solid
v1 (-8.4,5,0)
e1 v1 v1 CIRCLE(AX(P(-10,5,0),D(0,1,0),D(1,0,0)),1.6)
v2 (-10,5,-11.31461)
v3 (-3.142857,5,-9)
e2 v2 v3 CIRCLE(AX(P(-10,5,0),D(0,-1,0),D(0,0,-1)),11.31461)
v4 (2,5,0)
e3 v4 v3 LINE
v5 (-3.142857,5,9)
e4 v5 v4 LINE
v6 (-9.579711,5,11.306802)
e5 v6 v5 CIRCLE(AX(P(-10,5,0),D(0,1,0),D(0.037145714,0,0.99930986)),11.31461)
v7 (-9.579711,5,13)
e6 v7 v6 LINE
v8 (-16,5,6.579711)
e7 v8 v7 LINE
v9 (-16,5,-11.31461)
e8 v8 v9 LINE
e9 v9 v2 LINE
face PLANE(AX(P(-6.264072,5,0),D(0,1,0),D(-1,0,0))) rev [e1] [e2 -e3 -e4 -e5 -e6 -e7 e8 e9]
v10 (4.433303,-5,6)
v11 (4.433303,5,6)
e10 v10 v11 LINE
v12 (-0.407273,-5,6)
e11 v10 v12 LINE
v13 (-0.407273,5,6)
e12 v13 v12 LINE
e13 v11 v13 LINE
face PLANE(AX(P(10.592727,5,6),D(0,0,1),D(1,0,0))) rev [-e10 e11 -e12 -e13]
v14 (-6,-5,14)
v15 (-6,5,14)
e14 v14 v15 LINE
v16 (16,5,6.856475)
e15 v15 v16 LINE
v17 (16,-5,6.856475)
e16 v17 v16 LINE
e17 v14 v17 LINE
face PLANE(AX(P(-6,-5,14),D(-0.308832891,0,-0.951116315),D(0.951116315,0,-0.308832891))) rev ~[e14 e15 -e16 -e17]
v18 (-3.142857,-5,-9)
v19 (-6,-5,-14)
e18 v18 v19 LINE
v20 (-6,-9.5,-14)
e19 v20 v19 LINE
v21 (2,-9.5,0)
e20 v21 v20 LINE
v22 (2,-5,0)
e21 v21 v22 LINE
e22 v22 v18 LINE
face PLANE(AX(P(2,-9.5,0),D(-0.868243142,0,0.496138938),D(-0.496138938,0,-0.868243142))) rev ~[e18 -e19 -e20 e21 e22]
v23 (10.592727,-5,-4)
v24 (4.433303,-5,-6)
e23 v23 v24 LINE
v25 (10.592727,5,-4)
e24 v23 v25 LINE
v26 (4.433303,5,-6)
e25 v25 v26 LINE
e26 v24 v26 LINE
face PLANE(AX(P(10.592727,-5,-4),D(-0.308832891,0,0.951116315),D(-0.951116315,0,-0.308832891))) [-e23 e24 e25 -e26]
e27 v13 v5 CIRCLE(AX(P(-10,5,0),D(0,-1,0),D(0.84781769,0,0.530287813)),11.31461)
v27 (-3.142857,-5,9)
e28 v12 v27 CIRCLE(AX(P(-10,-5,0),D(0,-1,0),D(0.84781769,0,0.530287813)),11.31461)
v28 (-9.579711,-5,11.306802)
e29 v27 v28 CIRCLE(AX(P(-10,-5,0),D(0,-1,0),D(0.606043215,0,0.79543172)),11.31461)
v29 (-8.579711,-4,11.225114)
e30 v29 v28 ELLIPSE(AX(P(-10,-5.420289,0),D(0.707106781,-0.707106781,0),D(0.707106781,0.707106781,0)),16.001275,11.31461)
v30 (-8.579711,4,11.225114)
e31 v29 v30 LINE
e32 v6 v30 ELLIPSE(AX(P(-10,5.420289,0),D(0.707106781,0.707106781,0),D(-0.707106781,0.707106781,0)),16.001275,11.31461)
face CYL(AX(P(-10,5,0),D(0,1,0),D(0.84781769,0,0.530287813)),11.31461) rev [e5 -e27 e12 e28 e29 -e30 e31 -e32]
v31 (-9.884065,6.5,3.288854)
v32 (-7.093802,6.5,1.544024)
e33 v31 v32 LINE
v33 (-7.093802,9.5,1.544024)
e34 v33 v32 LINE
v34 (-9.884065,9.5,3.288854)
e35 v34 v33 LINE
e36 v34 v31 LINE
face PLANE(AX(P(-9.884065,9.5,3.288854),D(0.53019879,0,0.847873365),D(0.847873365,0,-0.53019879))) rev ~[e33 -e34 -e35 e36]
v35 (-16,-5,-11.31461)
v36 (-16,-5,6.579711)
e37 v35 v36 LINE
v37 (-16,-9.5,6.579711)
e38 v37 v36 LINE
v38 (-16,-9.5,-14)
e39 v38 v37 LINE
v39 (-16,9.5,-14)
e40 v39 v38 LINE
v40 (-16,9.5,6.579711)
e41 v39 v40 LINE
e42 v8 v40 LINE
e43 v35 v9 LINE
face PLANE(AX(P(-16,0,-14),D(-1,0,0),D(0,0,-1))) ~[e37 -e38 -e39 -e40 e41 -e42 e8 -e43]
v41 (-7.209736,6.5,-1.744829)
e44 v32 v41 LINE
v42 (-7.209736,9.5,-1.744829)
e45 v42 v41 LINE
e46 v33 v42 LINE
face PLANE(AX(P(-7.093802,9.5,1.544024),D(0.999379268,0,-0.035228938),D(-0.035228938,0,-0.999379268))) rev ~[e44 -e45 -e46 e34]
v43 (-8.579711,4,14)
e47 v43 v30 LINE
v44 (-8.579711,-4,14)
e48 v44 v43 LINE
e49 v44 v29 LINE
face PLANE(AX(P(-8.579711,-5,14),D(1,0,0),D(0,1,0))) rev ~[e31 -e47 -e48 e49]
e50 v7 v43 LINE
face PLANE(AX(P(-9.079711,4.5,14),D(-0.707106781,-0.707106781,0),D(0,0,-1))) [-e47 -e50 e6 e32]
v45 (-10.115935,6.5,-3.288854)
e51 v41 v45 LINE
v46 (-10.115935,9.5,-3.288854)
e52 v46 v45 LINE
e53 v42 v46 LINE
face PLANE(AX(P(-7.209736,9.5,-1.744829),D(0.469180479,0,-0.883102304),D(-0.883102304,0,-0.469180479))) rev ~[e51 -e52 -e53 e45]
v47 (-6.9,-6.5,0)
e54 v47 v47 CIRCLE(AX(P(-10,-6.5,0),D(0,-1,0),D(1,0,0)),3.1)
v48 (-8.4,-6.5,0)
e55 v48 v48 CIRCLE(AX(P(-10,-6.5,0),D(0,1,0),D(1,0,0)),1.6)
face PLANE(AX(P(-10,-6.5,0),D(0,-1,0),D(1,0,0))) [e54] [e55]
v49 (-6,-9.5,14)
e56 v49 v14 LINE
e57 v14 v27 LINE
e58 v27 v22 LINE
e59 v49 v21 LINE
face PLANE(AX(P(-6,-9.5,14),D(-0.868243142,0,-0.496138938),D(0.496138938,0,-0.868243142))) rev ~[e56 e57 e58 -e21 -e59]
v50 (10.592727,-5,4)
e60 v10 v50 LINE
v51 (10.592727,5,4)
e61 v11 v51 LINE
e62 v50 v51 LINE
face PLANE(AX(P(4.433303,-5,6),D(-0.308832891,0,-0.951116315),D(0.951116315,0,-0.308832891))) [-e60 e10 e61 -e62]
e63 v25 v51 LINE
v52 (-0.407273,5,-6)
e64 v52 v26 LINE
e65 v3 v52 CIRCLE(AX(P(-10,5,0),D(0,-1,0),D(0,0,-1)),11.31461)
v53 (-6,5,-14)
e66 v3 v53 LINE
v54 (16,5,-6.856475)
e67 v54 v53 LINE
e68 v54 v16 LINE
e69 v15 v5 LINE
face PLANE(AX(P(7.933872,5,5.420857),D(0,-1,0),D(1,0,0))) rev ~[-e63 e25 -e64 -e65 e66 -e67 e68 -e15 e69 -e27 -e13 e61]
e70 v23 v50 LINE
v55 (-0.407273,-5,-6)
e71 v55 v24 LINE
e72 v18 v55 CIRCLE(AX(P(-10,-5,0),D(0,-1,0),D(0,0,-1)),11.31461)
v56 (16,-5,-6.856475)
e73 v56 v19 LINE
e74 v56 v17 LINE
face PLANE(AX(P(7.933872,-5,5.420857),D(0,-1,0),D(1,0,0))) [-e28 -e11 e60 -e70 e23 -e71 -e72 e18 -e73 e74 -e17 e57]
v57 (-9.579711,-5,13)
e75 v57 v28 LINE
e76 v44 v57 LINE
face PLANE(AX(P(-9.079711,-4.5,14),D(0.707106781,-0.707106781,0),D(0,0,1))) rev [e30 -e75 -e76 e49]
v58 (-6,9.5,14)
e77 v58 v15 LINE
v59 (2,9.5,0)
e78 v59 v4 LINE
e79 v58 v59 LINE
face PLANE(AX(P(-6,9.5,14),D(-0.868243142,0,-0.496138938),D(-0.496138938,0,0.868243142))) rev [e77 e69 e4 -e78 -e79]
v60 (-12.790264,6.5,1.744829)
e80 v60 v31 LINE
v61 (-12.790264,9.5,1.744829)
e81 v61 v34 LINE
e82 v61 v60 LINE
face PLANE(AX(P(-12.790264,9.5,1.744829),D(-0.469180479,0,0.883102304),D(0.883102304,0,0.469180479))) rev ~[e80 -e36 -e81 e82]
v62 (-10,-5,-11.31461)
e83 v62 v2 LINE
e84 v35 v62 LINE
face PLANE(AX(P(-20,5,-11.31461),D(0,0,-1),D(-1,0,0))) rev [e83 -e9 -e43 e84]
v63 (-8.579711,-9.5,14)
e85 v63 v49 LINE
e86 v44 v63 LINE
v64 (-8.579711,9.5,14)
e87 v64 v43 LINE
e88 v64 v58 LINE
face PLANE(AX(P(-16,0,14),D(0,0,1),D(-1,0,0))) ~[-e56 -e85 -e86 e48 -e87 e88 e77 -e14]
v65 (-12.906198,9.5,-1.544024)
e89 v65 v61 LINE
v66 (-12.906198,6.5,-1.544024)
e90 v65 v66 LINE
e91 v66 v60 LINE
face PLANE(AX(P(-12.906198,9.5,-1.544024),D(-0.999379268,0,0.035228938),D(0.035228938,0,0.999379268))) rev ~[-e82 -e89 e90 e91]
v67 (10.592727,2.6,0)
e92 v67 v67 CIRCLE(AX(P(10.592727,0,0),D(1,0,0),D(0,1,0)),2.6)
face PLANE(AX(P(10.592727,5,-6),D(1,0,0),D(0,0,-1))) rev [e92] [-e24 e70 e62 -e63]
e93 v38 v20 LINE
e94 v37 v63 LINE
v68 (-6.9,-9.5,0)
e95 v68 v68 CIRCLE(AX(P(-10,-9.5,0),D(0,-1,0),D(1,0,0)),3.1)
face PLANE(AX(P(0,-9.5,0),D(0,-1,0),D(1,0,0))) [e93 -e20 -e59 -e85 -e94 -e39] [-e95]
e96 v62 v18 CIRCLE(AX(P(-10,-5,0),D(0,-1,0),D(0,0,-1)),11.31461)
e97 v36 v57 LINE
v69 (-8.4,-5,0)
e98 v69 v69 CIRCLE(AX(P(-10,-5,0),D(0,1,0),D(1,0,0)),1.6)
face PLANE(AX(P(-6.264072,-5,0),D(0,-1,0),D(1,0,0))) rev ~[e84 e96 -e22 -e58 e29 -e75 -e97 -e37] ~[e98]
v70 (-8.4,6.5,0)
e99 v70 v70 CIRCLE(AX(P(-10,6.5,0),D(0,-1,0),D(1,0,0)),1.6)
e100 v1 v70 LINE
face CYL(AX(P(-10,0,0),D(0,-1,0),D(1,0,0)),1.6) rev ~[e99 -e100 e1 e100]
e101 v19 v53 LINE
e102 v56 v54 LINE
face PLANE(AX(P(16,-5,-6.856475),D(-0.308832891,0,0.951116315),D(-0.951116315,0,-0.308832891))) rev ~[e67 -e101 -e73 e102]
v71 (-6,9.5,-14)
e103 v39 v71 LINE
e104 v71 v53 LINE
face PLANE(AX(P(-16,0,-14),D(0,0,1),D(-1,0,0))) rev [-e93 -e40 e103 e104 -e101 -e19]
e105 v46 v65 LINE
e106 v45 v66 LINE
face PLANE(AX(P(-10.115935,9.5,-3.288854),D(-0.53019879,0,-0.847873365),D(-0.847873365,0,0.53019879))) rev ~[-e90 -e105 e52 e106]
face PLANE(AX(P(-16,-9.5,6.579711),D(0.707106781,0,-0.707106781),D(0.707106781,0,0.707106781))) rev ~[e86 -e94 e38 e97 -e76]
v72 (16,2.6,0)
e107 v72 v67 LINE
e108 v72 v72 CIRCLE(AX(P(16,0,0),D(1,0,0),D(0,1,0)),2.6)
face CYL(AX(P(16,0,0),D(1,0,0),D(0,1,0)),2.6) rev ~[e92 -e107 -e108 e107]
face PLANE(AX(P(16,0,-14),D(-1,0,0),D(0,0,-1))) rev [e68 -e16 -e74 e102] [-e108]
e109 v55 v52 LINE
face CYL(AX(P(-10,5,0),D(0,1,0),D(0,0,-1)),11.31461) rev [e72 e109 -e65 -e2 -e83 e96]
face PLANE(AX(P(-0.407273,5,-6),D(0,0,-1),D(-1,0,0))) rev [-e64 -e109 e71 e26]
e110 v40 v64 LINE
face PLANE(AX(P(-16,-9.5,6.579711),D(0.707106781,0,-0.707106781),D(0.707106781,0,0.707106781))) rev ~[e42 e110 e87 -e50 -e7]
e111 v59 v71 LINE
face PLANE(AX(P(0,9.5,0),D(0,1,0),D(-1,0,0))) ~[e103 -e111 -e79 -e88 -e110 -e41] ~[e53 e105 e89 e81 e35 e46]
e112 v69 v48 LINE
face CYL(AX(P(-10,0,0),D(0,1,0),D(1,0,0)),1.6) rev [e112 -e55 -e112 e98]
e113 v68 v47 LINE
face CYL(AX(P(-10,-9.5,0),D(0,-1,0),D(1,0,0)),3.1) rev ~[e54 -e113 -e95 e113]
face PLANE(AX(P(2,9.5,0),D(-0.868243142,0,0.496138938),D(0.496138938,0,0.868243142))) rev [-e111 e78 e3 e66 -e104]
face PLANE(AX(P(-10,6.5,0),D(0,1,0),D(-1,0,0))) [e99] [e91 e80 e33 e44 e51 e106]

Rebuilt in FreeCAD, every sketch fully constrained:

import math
import FreeCAD as App
import Part
import Sketcher

V = App.Vector


def edges_at(feature, points):
    """Names of the edges that pass closest to the given points."""
    edges = feature.Shape.Edges
    near = lambda p: min(range(len(edges)), key=lambda i: edges[i].distToShape(Part.Vertex(*p))[0])
    return sorted({f"Edge{near(p) + 1}" for p in points})


def add_polygon(sketch, points):
    """Adds a closed chain of lines whose ends are joined by coincident constraints."""
    first, n = sketch.GeometryCount, len(points)
    for a, b in zip(points, points[1:] + points[:1]):
        sketch.addGeometry(Part.LineSegment(App.Vector(*a, 0), App.Vector(*b, 0)), False)
    for i in range(n):
        sketch.addConstraint(Sketcher.Constraint("Coincident", first + i, 2, first + (i + 1) % n, 1))

doc = App.newDocument("Part")
body = doc.addObject("PartDesign::Body", "Body")

# Sketch on XZ plane
sketch1 = body.newObject("Sketcher::SketchObject", "Sketch")
sketch1.AttachmentSupport = (doc.getObject("XZ_Plane"), [""])
sketch1.MapMode = "FlatFace"
add_polygon(sketch1, [(-16, 14), (-16, -14), (16, -14), (16, 14)])  # lines 0-3
sketch1.addGeometry(Part.Circle(V(-10, 0, 0), V(0, 0, 1), 1.6), False)  # 4
sketch1.addConstraint(Sketcher.Constraint("Vertical", 0))
sketch1.addConstraint(Sketcher.Constraint("Horizontal", 1))
sketch1.addConstraint(Sketcher.Constraint("Vertical", 2))
sketch1.addConstraint(Sketcher.Constraint("Horizontal", 3))
sketch1.addConstraint(Sketcher.Constraint("Symmetric", 0, 2, 2, 2, -1, 1))
sketch1.addConstraint(Sketcher.Constraint("PointOnObject", 4, 3, -1))
sketch1.addConstraint(Sketcher.Constraint("Diameter", 4, 3.2))
sketch1.addConstraint(Sketcher.Constraint("DistanceX", 1, 1, 1, 2, 32.0))
sketch1.addConstraint(Sketcher.Constraint("DistanceY", 0, 2, 0, 1, 28.0))
sketch1.addConstraint(Sketcher.Constraint("DistanceX", 4, 3, -1, 1, 10.0))
pad1 = body.newObject("PartDesign::Pad", "Pad")
pad1.Profile = sketch1
pad1.Length = 9.5

# Sketch on XZ plane
sketch2 = body.newObject("Sketcher::SketchObject", "Sketch001")
sketch2.AttachmentSupport = (doc.getObject("XZ_Plane"), [""])
sketch2.MapMode = "FlatFace"
sketch2.AttachmentOffset = App.Placement(V(0, 0, 9.5), App.Rotation())
add_polygon(sketch2, [(16, -14), (16, 14), (-6, 14), (2, 0), (-6, -14)])  # lines 0-4
sketch2.addConstraint(Sketcher.Constraint("Vertical", 0))
sketch2.addConstraint(Sketcher.Constraint("Horizontal", 1))
sketch2.addConstraint(Sketcher.Constraint("Horizontal", 4))
sketch2.addConstraint(Sketcher.Constraint("Symmetric", 1, 2, 3, 2, -1))
sketch2.addConstraint(Sketcher.Constraint("PointOnObject", 2, 2, -1))
sketch2.addConstraint(Sketcher.Constraint("DistanceX", 1, 2, 1, 1, 22.0))
sketch2.addConstraint(Sketcher.Constraint("DistanceY", 0, 1, 0, 2, 28.0))
sketch2.addConstraint(Sketcher.Constraint("DistanceX", -1, 1, 0, 2, 16.0))
sketch2.addConstraint(Sketcher.Constraint("DistanceX", -1, 1, 2, 2, 2.0))
pocket1 = body.newObject("PartDesign::Pocket", "Pocket")
pocket1.Profile = sketch2
pocket1.Length = 4.5

# Sketch on XZ plane
sketch3 = body.newObject("Sketcher::SketchObject", "Sketch002")
sketch3.AttachmentSupport = (doc.getObject("XZ_Plane"), [""])
sketch3.MapMode = "FlatFace"
sketch3.AttachmentOffset = App.Placement(V(0, 0, 5), App.Rotation())
sketch3.addGeometry(Part.LineSegment(V(10.592727, 6, 0), V(-0.407273, 6, 0)), False)
sketch3.addGeometry(Part.ArcOfCircle(Part.Circle(V(-10, 0, 0), V(0, 0, 1), 11.31461), math.radians(32.024903), math.radians(90)), False)
sketch3.addGeometry(Part.LineSegment(V(-10, 11.31461, 0), V(-20, 11.31461, 0)), False)
sketch3.addGeometry(Part.LineSegment(V(-20, 11.31461, 0), V(-20, -11.31461, 0)), False)
sketch3.addGeometry(Part.LineSegment(V(-20, -11.31461, 0), V(-10, -11.31461, 0)), False)
sketch3.addGeometry(Part.ArcOfCircle(Part.Circle(V(-10, 0, 0), V(0, 0, 1), 11.31461), math.radians(-90), math.radians(-32.024903)), False)
sketch3.addGeometry(Part.LineSegment(V(-0.407273, -6, 0), V(10.592727, -6, 0)), False)
sketch3.addGeometry(Part.LineSegment(V(10.592727, -6, 0), V(10.592727, 6, 0)), False)
sketch3.addConstraint(Sketcher.Constraint("Coincident", 0, 2, 1, 1))
sketch3.addConstraint(Sketcher.Constraint("Tangent", 1, 2, 2, 1))
sketch3.addConstraint(Sketcher.Constraint("Coincident", 2, 2, 3, 1))
sketch3.addConstraint(Sketcher.Constraint("Coincident", 3, 2, 4, 1))
sketch3.addConstraint(Sketcher.Constraint("Tangent", 4, 2, 5, 1))
sketch3.addConstraint(Sketcher.Constraint("Coincident", 5, 2, 6, 1))
sketch3.addConstraint(Sketcher.Constraint("Coincident", 6, 2, 7, 1))
sketch3.addConstraint(Sketcher.Constraint("Coincident", 7, 2, 0, 1))
sketch3.addConstraint(Sketcher.Constraint("Horizontal", 0))
sketch3.addConstraint(Sketcher.Constraint("Horizontal", 2))
sketch3.addConstraint(Sketcher.Constraint("Vertical", 3))
sketch3.addConstraint(Sketcher.Constraint("Horizontal", 4))
sketch3.addConstraint(Sketcher.Constraint("Horizontal", 6))
sketch3.addConstraint(Sketcher.Constraint("Vertical", 7))
sketch3.addConstraint(Sketcher.Constraint("Coincident", 5, 3, 1, 3))
sketch3.addConstraint(Sketcher.Constraint("Equal", 1, 5))
sketch3.addConstraint(Sketcher.Constraint("Symmetric", 0, 2, 5, 2, -1))
sketch3.addConstraint(Sketcher.Constraint("DistanceX", 0, 2, 0, 1, 11.0))
sketch3.addConstraint(Sketcher.Constraint("DistanceX", 2, 2, 2, 1, 10.0))
sketch3.addConstraint(Sketcher.Constraint("DistanceY", 7, 1, 7, 2, 12.0))
sketch3.addConstraint(Sketcher.Constraint("DistanceX", 1, 3, -1, 1, 10.0))
sketch3.addConstraint(Sketcher.Constraint("Radius", 1, 11.31461))
pocket2 = body.newObject("PartDesign::Pocket", "Pocket001")
pocket2.Profile = sketch3
pocket2.Type = "ThroughAll"
body2 = doc.addObject("PartDesign::Body", "Body001")
doc.recompute()

body2.BaseFeature = body
doc.recompute()

mirroring = doc.addObject("Part::Mirroring", "Mirroring")
mirroring.Source = body
mirroring.Base = V(0, 0, 0)
mirroring.Normal = V(0, -1, 0)
body3 = doc.addObject("PartDesign::Body", "Body002")
body3.BaseFeature = mirroring
boolean = body2.newObject("PartDesign::Boolean", "Boolean")
boolean.Type = "Fuse"
boolean.addObjects([body3])
doc.recompute()

# Sketch on YZ plane
sketch4 = body2.newObject("Sketcher::SketchObject", "Sketch003")
sketch4.AttachmentSupport = (doc.getObject("YZ_Plane001"), [""])
sketch4.MapMode = "FlatFace"
sketch4.AttachmentOffset = App.Placement(V(0, 0, 16), App.Rotation())
sketch4.addGeometry(Part.Circle(V(0, 0, 0), V(0, 0, 1), 2.6), False)
sketch4.addConstraint(Sketcher.Constraint("Coincident", 0, 3, -1, 1))
sketch4.addConstraint(Sketcher.Constraint("Diameter", 0, 5.2))
pocket3 = body2.newObject("PartDesign::Pocket", "Pocket002")
pocket3.Profile = sketch4
pocket3.Length = 25

# Sketch on XZ plane
sketch5 = body2.newObject("Sketcher::SketchObject", "Sketch004")
sketch5.AttachmentSupport = (doc.getObject("XZ_Plane001"), [""])
sketch5.MapMode = "FlatFace"
sketch5.AttachmentOffset = App.Placement(V(0, 0, -9.5), App.Rotation())
add_polygon(sketch5, [(-10.115935, -3.288854), (-12.906198, -1.544024), (-12.790264, 1.744829), (-9.884065, 3.288854), (-7.093802, 1.544024), (-7.209736, -1.744829)])  # lines 0-5
sketch5.addConstraint(Sketcher.Constraint("Parallel", 0, 3))
sketch5.addConstraint(Sketcher.Constraint("Parallel", 1, 4))
sketch5.addConstraint(Sketcher.Constraint("Parallel", 2, 5))
sketch5.addConstraint(Sketcher.Constraint("Equal", 0, 1))
sketch5.addConstraint(Sketcher.Constraint("Equal", 1, 2))
sketch5.addConstraint(Sketcher.Constraint("Equal", 2, 3))
sketch5.addConstraint(Sketcher.Constraint("DistanceX", 0, 2, -1, 1, 12.906198))
sketch5.addConstraint(Sketcher.Constraint("DistanceX", 3, 2, -1, 1, 7.093802))
sketch5.addConstraint(Sketcher.Constraint("DistanceX", 1, 2, 2, 2, 2.906198))
sketch5.addConstraint(Sketcher.Constraint("DistanceY", -1, 1, 1, 2, 1.744829))
sketch5.addConstraint(Sketcher.Constraint("DistanceY", 4, 2, -1, 1, 1.744829))
sketch5.addConstraint(Sketcher.Constraint("DistanceY", 0, 2, 2, 2, 4.832878))
pocket4 = body2.newObject("PartDesign::Pocket", "Pocket003")
pocket4.Profile = sketch5
pocket4.Length = 3
pocket4.Reversed = True

# Sketch on XZ plane
sketch6 = body2.newObject("Sketcher::SketchObject", "Sketch005")
sketch6.AttachmentSupport = (doc.getObject("XZ_Plane001"), [""])
sketch6.MapMode = "FlatFace"
sketch6.AttachmentOffset = App.Placement(V(0, 0, 9.5), App.Rotation())
sketch6.addGeometry(Part.Circle(V(-10, 0, 0), V(0, 0, 1), 3.1), False)
sketch6.addConstraint(Sketcher.Constraint("PointOnObject", 0, 3, -1))
sketch6.addConstraint(Sketcher.Constraint("Diameter", 0, 6.2))
sketch6.addConstraint(Sketcher.Constraint("DistanceX", 0, 3, -1, 1, 10.0))
pocket5 = body2.newObject("PartDesign::Pocket", "Pocket004")
pocket5.Profile = sketch6
pocket5.Length = 3

# Sketch on XZ plane
sketch7 = body2.newObject("Sketcher::SketchObject", "Sketch006")
sketch7.AttachmentSupport = (doc.getObject("XZ_Plane001"), [""])
sketch7.MapMode = "FlatFace"
sketch7.AttachmentOffset = App.Placement(V(0, 0, 5), App.Rotation())
add_polygon(sketch7, [(16, 6.856475), (16, 14), (-6, 14)])  # lines 0-2
add_polygon(sketch7, [(16, -6.856475), (-6, -14), (16, -14)])  # lines 3-5
sketch7.addConstraint(Sketcher.Constraint("Vertical", 0))
sketch7.addConstraint(Sketcher.Constraint("Horizontal", 1))
sketch7.addConstraint(Sketcher.Constraint("Horizontal", 4))
sketch7.addConstraint(Sketcher.Constraint("Vertical", 5))
sketch7.addConstraint(Sketcher.Constraint("Symmetric", 1, 2, 3, 2, -1))
sketch7.addConstraint(Sketcher.Constraint("Symmetric", 2, 2, 5, 2, -1))
sketch7.addConstraint(Sketcher.Constraint("DistanceX", 1, 2, 1, 1, 22.0))
sketch7.addConstraint(Sketcher.Constraint("DistanceX", -1, 1, 0, 2, 16.0))
sketch7.addConstraint(Sketcher.Constraint("DistanceY", -1, 1, 0, 2, 14.0))
sketch7.addConstraint(Sketcher.Constraint("DistanceY", 0, 1, 0, 2, 7.143525))
pocket6 = body2.newObject("PartDesign::Pocket", "Pocket005")
pocket6.Profile = sketch7
pocket6.Length = 25

# Sketch on XZ plane
sketch8 = body2.newObject("Sketcher::SketchObject", "Sketch007")
sketch8.AttachmentSupport = (doc.getObject("XZ_Plane001"), [""])
sketch8.MapMode = "FlatFace"
sketch8.AttachmentOffset = App.Placement(V(0, 0, 5), App.Rotation())
add_polygon(sketch8, [(10.592727, 6), (4.433303, 6), (10.592727, 4)])  # lines 0-2
add_polygon(sketch8, [(4.433303, -6), (10.592727, -6), (10.592727, -4)])  # lines 3-5
sketch8.addConstraint(Sketcher.Constraint("Horizontal", 0))
sketch8.addConstraint(Sketcher.Constraint("Vertical", 2))
sketch8.addConstraint(Sketcher.Constraint("Horizontal", 3))
sketch8.addConstraint(Sketcher.Constraint("Vertical", 4))
sketch8.addConstraint(Sketcher.Constraint("Symmetric", 2, 2, 3, 2, -1))
sketch8.addConstraint(Sketcher.Constraint("Vertical", 0, 2, 5, 2))
sketch8.addConstraint(Sketcher.Constraint("Equal", 2, 4))
sketch8.addConstraint(Sketcher.Constraint("DistanceY", 2, 1, 2, 2, 2.0))
sketch8.addConstraint(Sketcher.Constraint("DistanceY", -1, 1, 0, 2, 6.0))
sketch8.addConstraint(Sketcher.Constraint("DistanceX", 0, 2, 0, 1, 6.159424))
sketch8.addConstraint(Sketcher.Constraint("DistanceX", -1, 1, 0, 2, 4.433303))
pad2 = body2.newObject("PartDesign::Pad", "Pad001")
pad2.Profile = sketch8
pad2.Length = 10
pad2.Reversed = True

# Sketch on XY plane
sketch9 = body2.newObject("Sketcher::SketchObject", "Sketch008")
sketch9.AttachmentSupport = (doc.getObject("XY_Plane001"), [""])
sketch9.MapMode = "FlatFace"
sketch9.AttachmentOffset = App.Placement(V(0, 0, 14), App.Rotation())
add_polygon(sketch9, [(-16, 5), (-16, -5), (-8.579711, -5), (-8.579711, 5)])  # lines 0-3
sketch9.addConstraint(Sketcher.Constraint("Vertical", 0))
sketch9.addConstraint(Sketcher.Constraint("Horizontal", 1))
sketch9.addConstraint(Sketcher.Constraint("Vertical", 2))
sketch9.addConstraint(Sketcher.Constraint("Horizontal", 3))
sketch9.addConstraint(Sketcher.Constraint("DistanceY", 0, 2, 0, 1, 10.0))
sketch9.addConstraint(Sketcher.Constraint("DistanceX", 0, 2, -1, 1, 16.0))
sketch9.addConstraint(Sketcher.Constraint("DistanceY", 0, 2, -1, 1, 5.0))
sketch9.addConstraint(Sketcher.Constraint("DistanceX", 1, 1, 1, 2, 7.420289))
pocket7 = body2.newObject("PartDesign::Pocket", "Pocket006")
pocket7.Profile = sketch9
pocket7.Length = 5

# Sketch on XZ plane
sketch10 = body2.newObject("Sketcher::SketchObject", "Sketch009")
sketch10.AttachmentSupport = (doc.getObject("XZ_Plane001"), [""])
sketch10.MapMode = "FlatFace"
sketch10.AttachmentOffset = App.Placement(V(0, 0, 9.5), App.Rotation())
add_polygon(sketch10, [(-16, 6.579711), (-8.579711, 14), (-16, 14)])  # lines 0-2
sketch10.addConstraint(Sketcher.Constraint("Horizontal", 1))
sketch10.addConstraint(Sketcher.Constraint("Vertical", 2))
sketch10.addConstraint(Sketcher.Constraint("Equal", 1, 2))
sketch10.addConstraint(Sketcher.Constraint("DistanceY", -1, 1, 0, 2, 14.0))
sketch10.addConstraint(Sketcher.Constraint("DistanceX", 1, 2, -1, 1, 16.0))
sketch10.addConstraint(Sketcher.Constraint("DistanceX", 1, 2, 1, 1, 7.420289))
pocket8 = body2.newObject("PartDesign::Pocket", "Pocket007")
pocket8.Profile = sketch10
pocket8.Length = 25
doc.recompute()

chamfer = body2.newObject("PartDesign::Chamfer", "Chamfer")
chamfer.Base = (pocket8, edges_at(pocket8, [(-8.58, -5, 12.613), (-8.58, 5, 12.613)]))
chamfer.Size = 1
mirroring.Visibility = False

doc.recompute()
